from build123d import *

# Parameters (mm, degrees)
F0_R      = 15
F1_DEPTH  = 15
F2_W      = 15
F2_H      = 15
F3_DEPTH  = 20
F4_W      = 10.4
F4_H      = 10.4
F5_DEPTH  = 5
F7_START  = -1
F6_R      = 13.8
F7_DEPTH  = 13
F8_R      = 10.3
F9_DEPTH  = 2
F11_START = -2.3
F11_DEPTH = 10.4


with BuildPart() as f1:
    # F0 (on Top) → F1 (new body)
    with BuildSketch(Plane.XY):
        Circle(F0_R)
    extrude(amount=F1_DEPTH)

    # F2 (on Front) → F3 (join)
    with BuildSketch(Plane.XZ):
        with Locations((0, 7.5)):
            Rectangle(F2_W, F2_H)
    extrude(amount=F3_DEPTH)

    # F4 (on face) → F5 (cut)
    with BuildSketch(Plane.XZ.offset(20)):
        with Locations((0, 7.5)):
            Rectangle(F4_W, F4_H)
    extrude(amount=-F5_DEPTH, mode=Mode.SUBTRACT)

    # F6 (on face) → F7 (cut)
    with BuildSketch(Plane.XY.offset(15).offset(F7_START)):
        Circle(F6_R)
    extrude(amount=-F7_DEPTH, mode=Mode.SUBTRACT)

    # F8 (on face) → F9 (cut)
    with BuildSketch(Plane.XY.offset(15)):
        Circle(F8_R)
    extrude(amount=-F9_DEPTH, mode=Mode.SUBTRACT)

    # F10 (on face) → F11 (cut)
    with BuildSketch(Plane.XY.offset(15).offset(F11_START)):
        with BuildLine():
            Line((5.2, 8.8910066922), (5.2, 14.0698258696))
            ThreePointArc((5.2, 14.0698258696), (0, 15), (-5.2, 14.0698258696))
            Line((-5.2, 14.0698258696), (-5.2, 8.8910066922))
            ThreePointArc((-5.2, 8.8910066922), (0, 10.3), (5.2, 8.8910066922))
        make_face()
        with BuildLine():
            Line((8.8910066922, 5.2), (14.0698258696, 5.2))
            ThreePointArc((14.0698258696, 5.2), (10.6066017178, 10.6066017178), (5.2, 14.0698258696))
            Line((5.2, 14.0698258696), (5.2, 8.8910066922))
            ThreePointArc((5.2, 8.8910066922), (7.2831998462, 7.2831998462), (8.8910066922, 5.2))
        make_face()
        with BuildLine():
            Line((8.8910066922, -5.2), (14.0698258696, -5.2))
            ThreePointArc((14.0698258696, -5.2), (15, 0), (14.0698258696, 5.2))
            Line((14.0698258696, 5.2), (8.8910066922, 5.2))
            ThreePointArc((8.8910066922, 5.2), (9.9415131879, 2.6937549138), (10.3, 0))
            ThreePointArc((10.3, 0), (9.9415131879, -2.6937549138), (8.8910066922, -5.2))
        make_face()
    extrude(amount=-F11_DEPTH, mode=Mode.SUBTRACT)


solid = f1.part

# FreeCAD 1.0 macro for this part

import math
import FreeCAD as App
import Part
import Sketcher

V = App.Vector

doc = App.newDocument("Part")
params = doc.addObject("Spreadsheet::Sheet", "Params")
for row, (alias, value) in enumerate([
    ("sketch1_diameter", "30 mm"),
    ("pad1_length", "15 mm"),
    ("sketch2_width", "15 mm"),
    ("pad2_length", "20 mm"),
    ("sketch3_width", "10.4 mm"),
    ("pocket1_length", "5 mm"),
    ("sketch4_diameter", "27.6 mm"),
    ("pocket2_length", "13 mm"),
    ("sketch5_diameter", "20.6 mm"),
    ("pocket3_length", "2 mm"),
    ("sketch6_radius", "15 mm"),
    ("sketch6_radius2", "10.3 mm"),
    ("pocket4_length", "10.4 mm"),
], start=1):
    params.set(f"A{row}", alias)
    params.set(f"B{row}", "=" + value)
    params.setAlias(f"B{row}", alias)

body = doc.addObject("PartDesign::Body", "Body")

# Sketch on XY plane
sketch1 = body.newObject("Sketcher::SketchObject", "Sketch")
sketch1.AttachmentSupport = (doc.getObject("XY_Plane"), [""])
sketch1.MapMode = "FlatFace"
sketch1.addGeometry(Part.Circle(V(0, 0, 0), V(0, 0, 1), 15), False)
sketch1.addConstraint([
    Sketcher.Constraint("Coincident", 0, 3, -1, 1),
    Sketcher.Constraint("Diameter", 0, 30.0),
])
sketch1.setExpression("Constraints[1]", "Params.sketch1_diameter")
pad1 = body.newObject("PartDesign::Pad", "Pad")
pad1.Profile = sketch1
pad1.setExpression("Length", "Params.pad1_length")

# Sketch on XZ plane
sketch2 = body.newObject("Sketcher::SketchObject", "Sketch001")
sketch2.AttachmentSupport = (doc.getObject("XZ_Plane"), [""])
sketch2.MapMode = "FlatFace"
sketch2.addGeometry([
    Part.LineSegment(V(-8, 15, 0), V(-8, 0, 0)),
    Part.LineSegment(V(-8, 0, 0), V(8, 0, 0)),
    Part.LineSegment(V(8, 0, 0), V(8, 15, 0)),
    Part.LineSegment(V(8, 15, 0), V(-8, 15, 0)),
], False)
sketch2.addConstraint([
    Sketcher.Constraint("Coincident", 0, 2, 1, 1),
    Sketcher.Constraint("Coincident", 1, 2, 2, 1),
    Sketcher.Constraint("Coincident", 2, 2, 3, 1),
    Sketcher.Constraint("Coincident", 3, 2, 0, 1),
    Sketcher.Constraint("Vertical", 0),
    Sketcher.Constraint("Horizontal", 1),
    Sketcher.Constraint("Vertical", 2),
    Sketcher.Constraint("Horizontal", 3),
    Sketcher.Constraint("Symmetric", 0, 2, 1, 2, -1, 1),
    Sketcher.Constraint("Equal", 3, 0),
    Sketcher.Constraint("DistanceX", 1, 1, 1, 2, 15.0),
])
sketch2.setExpression("Constraints[10]", "Params.sketch2_width")
pad2 = body.newObject("PartDesign::Pad", "Pad001")
pad2.Profile = sketch2
pad2.setExpression("Length", "Params.pad2_length")

# Sketch on XZ plane
sketch3 = body.newObject("Sketcher::SketchObject", "Sketch002")
sketch3.AttachmentSupport = (doc.getObject("XZ_Plane"), [""])
sketch3.MapMode = "FlatFace"
sketch3.AttachmentOffset = App.Placement(V(0, 0, 20), App.Rotation())
sketch3.addGeometry([
    Part.LineSegment(V(-5, 13, 0), V(-5, 2, 0)),
    Part.LineSegment(V(-5, 2, 0), V(5, 2, 0)),
    Part.LineSegment(V(5, 2, 0), V(5, 13, 0)),
    Part.LineSegment(V(5, 13, 0), V(-5, 13, 0)),
], False)
sketch3.addConstraint([
    Sketcher.Constraint("Coincident", 0, 2, 1, 1),
    Sketcher.Constraint("Coincident", 1, 2, 2, 1),
    Sketcher.Constraint("Coincident", 2, 2, 3, 1),
    Sketcher.Constraint("Coincident", 3, 2, 0, 1),
    Sketcher.Constraint("Vertical", 0),
    Sketcher.Constraint("Horizontal", 1),
    Sketcher.Constraint("Vertical", 2),
    Sketcher.Constraint("Horizontal", 3),
    Sketcher.Constraint("Equal", 3, 0),
    Sketcher.Constraint("DistanceX", 1, 1, 1, 2, 10.4),
    Sketcher.Constraint("DistanceX", 0, 2, -1, 1, 5.2),
    Sketcher.Constraint("DistanceY", -1, 1, 0, 2, 2.3),
])
sketch3.setExpression("Constraints[9]", "Params.sketch3_width")
pocket1 = body.newObject("PartDesign::Pocket", "Pocket")
pocket1.Profile = sketch3
pocket1.setExpression("Length", "Params.pocket1_length")

# Sketch on XY plane
sketch4 = body.newObject("Sketcher::SketchObject", "Sketch003")
sketch4.AttachmentSupport = (doc.getObject("XY_Plane"), [""])
sketch4.MapMode = "FlatFace"
sketch4.AttachmentOffset = App.Placement(V(0, 0, 14), App.Rotation())
sketch4.addGeometry(Part.Circle(V(0, 0, 0), V(0, 0, 1), 14), False)
sketch4.addConstraint([
    Sketcher.Constraint("Coincident", 0, 3, -1, 1),
    Sketcher.Constraint("Diameter", 0, 27.6),
])
sketch4.setExpression("Constraints[1]", "Params.sketch4_diameter")
pocket2 = body.newObject("PartDesign::Pocket", "Pocket001")
pocket2.Profile = sketch4
pocket2.setExpression("Length", "Params.pocket2_length")

# Sketch on XY plane
sketch5 = body.newObject("Sketcher::SketchObject", "Sketch004")
sketch5.AttachmentSupport = (doc.getObject("XY_Plane"), [""])
sketch5.MapMode = "FlatFace"
sketch5.AttachmentOffset = App.Placement(V(0, 0, 15), App.Rotation())
sketch5.addGeometry(Part.Circle(V(0, 0, 0), V(0, 0, 1), 10), False)
sketch5.addConstraint([
    Sketcher.Constraint("Coincident", 0, 3, -1, 1),
    Sketcher.Constraint("Diameter", 0, 20.6),
])
sketch5.setExpression("Constraints[1]", "Params.sketch5_diameter")
pocket3 = body.newObject("PartDesign::Pocket", "Pocket002")
pocket3.Profile = sketch5
pocket3.setExpression("Length", "Params.pocket3_length")

# Sketch on XY plane
sketch6 = body.newObject("Sketcher::SketchObject", "Sketch005")
sketch6.AttachmentSupport = (doc.getObject("XY_Plane"), [""])
sketch6.MapMode = "FlatFace"
sketch6.AttachmentOffset = App.Placement(V(0, 0, 12.7), App.Rotation())
sketch6.addGeometry([
    Part.ArcOfCircle(Part.Circle(V(0, 0, 0), V(0, 0, 1), 15), math.radians(70), math.radians(110)),  # 0
    Part.LineSegment(V(-5, 14, 0), V(-5, 9, 0)),  # 1
    Part.ArcOfCircle(Part.Circle(V(0, 0, 0), V(0, 0, 1), 10), math.radians(60), math.radians(120)),  # 2
    Part.ArcOfCircle(Part.Circle(V(0, 0, 0), V(0, 0, 1), 10), math.radians(30), math.radians(60)),  # 3
    Part.ArcOfCircle(Part.Circle(V(0, 0, 0), V(0, 0, 1), 10), math.radians(0), math.radians(30)),  # 4
    Part.ArcOfCircle(Part.Circle(V(0, 0, 0), V(0, 0, 1), 10), math.radians(-30), math.radians(0)),  # 5
    Part.LineSegment(V(9, -5, 0), V(14, -5, 0)),  # 6
    Part.ArcOfCircle(Part.Circle(V(0, 0, 0), V(0, 0, 1), 15), math.radians(-20), math.radians(20)),  # 7
    Part.ArcOfCircle(Part.Circle(V(0, 0, 0), V(0, 0, 1), 15), math.radians(20), math.radians(70)),  # 8
], False)
sketch6.addConstraint([
    Sketcher.Constraint("Coincident", 0, 2, 1, 1),
    Sketcher.Constraint("Coincident", 1, 2, 2, 2),
    Sketcher.Constraint("Tangent", 2, 1, 3, 2),
    Sketcher.Constraint("Tangent", 3, 1, 4, 2),
    Sketcher.Constraint("Tangent", 4, 1, 5, 2),
    Sketcher.Constraint("Coincident", 5, 1, 6, 1),
    Sketcher.Constraint("Coincident", 6, 2, 7, 1),
    Sketcher.Constraint("Tangent", 7, 2, 8, 1),
    Sketcher.Constraint("Tangent", 8, 2, 0, 1),
    Sketcher.Constraint("Vertical", 1),
    Sketcher.Constraint("Horizontal", 6),
    Sketcher.Constraint("Coincident", 0, 3, -1, 1),
    Sketcher.Constraint("Coincident", 2, 3, -1, 1),
    Sketcher.Constraint("Coincident", 4, 3, -1, 1),
    Sketcher.Constraint("Coincident", 7, 3, -1, 1),
    Sketcher.Constraint("Equal", 4, 5),
    Sketcher.Constraint("PointOnObject", 4, 1, -1),
    Sketcher.Constraint("Horizontal", 1, 2, 2, 1),
    Sketcher.Constraint("Horizontal", 3, 1, 7, 2),
    Sketcher.Constraint("Horizontal", 0, 2, 8, 2),
    Sketcher.Constraint("Vertical", 3, 1, 5, 1),
    Sketcher.Constraint("Equal", 6, 1),
    Sketcher.Constraint("Radius", 0, 15.0),
    Sketcher.Constraint("Radius", 2, 10.3),
    Sketcher.Constraint("DistanceX", 0, 2, -1, 1, 5.2),
])
sketch6.setExpression("Constraints[22]", "Params.sketch6_radius")
sketch6.setExpression("Constraints[23]", "Params.sketch6_radius2")
pocket4 = body.newObject("PartDesign::Pocket", "Pocket003")
pocket4.Profile = sketch6
pocket4.setExpression("Length", "Params.pocket4_length")

doc.recompute()
